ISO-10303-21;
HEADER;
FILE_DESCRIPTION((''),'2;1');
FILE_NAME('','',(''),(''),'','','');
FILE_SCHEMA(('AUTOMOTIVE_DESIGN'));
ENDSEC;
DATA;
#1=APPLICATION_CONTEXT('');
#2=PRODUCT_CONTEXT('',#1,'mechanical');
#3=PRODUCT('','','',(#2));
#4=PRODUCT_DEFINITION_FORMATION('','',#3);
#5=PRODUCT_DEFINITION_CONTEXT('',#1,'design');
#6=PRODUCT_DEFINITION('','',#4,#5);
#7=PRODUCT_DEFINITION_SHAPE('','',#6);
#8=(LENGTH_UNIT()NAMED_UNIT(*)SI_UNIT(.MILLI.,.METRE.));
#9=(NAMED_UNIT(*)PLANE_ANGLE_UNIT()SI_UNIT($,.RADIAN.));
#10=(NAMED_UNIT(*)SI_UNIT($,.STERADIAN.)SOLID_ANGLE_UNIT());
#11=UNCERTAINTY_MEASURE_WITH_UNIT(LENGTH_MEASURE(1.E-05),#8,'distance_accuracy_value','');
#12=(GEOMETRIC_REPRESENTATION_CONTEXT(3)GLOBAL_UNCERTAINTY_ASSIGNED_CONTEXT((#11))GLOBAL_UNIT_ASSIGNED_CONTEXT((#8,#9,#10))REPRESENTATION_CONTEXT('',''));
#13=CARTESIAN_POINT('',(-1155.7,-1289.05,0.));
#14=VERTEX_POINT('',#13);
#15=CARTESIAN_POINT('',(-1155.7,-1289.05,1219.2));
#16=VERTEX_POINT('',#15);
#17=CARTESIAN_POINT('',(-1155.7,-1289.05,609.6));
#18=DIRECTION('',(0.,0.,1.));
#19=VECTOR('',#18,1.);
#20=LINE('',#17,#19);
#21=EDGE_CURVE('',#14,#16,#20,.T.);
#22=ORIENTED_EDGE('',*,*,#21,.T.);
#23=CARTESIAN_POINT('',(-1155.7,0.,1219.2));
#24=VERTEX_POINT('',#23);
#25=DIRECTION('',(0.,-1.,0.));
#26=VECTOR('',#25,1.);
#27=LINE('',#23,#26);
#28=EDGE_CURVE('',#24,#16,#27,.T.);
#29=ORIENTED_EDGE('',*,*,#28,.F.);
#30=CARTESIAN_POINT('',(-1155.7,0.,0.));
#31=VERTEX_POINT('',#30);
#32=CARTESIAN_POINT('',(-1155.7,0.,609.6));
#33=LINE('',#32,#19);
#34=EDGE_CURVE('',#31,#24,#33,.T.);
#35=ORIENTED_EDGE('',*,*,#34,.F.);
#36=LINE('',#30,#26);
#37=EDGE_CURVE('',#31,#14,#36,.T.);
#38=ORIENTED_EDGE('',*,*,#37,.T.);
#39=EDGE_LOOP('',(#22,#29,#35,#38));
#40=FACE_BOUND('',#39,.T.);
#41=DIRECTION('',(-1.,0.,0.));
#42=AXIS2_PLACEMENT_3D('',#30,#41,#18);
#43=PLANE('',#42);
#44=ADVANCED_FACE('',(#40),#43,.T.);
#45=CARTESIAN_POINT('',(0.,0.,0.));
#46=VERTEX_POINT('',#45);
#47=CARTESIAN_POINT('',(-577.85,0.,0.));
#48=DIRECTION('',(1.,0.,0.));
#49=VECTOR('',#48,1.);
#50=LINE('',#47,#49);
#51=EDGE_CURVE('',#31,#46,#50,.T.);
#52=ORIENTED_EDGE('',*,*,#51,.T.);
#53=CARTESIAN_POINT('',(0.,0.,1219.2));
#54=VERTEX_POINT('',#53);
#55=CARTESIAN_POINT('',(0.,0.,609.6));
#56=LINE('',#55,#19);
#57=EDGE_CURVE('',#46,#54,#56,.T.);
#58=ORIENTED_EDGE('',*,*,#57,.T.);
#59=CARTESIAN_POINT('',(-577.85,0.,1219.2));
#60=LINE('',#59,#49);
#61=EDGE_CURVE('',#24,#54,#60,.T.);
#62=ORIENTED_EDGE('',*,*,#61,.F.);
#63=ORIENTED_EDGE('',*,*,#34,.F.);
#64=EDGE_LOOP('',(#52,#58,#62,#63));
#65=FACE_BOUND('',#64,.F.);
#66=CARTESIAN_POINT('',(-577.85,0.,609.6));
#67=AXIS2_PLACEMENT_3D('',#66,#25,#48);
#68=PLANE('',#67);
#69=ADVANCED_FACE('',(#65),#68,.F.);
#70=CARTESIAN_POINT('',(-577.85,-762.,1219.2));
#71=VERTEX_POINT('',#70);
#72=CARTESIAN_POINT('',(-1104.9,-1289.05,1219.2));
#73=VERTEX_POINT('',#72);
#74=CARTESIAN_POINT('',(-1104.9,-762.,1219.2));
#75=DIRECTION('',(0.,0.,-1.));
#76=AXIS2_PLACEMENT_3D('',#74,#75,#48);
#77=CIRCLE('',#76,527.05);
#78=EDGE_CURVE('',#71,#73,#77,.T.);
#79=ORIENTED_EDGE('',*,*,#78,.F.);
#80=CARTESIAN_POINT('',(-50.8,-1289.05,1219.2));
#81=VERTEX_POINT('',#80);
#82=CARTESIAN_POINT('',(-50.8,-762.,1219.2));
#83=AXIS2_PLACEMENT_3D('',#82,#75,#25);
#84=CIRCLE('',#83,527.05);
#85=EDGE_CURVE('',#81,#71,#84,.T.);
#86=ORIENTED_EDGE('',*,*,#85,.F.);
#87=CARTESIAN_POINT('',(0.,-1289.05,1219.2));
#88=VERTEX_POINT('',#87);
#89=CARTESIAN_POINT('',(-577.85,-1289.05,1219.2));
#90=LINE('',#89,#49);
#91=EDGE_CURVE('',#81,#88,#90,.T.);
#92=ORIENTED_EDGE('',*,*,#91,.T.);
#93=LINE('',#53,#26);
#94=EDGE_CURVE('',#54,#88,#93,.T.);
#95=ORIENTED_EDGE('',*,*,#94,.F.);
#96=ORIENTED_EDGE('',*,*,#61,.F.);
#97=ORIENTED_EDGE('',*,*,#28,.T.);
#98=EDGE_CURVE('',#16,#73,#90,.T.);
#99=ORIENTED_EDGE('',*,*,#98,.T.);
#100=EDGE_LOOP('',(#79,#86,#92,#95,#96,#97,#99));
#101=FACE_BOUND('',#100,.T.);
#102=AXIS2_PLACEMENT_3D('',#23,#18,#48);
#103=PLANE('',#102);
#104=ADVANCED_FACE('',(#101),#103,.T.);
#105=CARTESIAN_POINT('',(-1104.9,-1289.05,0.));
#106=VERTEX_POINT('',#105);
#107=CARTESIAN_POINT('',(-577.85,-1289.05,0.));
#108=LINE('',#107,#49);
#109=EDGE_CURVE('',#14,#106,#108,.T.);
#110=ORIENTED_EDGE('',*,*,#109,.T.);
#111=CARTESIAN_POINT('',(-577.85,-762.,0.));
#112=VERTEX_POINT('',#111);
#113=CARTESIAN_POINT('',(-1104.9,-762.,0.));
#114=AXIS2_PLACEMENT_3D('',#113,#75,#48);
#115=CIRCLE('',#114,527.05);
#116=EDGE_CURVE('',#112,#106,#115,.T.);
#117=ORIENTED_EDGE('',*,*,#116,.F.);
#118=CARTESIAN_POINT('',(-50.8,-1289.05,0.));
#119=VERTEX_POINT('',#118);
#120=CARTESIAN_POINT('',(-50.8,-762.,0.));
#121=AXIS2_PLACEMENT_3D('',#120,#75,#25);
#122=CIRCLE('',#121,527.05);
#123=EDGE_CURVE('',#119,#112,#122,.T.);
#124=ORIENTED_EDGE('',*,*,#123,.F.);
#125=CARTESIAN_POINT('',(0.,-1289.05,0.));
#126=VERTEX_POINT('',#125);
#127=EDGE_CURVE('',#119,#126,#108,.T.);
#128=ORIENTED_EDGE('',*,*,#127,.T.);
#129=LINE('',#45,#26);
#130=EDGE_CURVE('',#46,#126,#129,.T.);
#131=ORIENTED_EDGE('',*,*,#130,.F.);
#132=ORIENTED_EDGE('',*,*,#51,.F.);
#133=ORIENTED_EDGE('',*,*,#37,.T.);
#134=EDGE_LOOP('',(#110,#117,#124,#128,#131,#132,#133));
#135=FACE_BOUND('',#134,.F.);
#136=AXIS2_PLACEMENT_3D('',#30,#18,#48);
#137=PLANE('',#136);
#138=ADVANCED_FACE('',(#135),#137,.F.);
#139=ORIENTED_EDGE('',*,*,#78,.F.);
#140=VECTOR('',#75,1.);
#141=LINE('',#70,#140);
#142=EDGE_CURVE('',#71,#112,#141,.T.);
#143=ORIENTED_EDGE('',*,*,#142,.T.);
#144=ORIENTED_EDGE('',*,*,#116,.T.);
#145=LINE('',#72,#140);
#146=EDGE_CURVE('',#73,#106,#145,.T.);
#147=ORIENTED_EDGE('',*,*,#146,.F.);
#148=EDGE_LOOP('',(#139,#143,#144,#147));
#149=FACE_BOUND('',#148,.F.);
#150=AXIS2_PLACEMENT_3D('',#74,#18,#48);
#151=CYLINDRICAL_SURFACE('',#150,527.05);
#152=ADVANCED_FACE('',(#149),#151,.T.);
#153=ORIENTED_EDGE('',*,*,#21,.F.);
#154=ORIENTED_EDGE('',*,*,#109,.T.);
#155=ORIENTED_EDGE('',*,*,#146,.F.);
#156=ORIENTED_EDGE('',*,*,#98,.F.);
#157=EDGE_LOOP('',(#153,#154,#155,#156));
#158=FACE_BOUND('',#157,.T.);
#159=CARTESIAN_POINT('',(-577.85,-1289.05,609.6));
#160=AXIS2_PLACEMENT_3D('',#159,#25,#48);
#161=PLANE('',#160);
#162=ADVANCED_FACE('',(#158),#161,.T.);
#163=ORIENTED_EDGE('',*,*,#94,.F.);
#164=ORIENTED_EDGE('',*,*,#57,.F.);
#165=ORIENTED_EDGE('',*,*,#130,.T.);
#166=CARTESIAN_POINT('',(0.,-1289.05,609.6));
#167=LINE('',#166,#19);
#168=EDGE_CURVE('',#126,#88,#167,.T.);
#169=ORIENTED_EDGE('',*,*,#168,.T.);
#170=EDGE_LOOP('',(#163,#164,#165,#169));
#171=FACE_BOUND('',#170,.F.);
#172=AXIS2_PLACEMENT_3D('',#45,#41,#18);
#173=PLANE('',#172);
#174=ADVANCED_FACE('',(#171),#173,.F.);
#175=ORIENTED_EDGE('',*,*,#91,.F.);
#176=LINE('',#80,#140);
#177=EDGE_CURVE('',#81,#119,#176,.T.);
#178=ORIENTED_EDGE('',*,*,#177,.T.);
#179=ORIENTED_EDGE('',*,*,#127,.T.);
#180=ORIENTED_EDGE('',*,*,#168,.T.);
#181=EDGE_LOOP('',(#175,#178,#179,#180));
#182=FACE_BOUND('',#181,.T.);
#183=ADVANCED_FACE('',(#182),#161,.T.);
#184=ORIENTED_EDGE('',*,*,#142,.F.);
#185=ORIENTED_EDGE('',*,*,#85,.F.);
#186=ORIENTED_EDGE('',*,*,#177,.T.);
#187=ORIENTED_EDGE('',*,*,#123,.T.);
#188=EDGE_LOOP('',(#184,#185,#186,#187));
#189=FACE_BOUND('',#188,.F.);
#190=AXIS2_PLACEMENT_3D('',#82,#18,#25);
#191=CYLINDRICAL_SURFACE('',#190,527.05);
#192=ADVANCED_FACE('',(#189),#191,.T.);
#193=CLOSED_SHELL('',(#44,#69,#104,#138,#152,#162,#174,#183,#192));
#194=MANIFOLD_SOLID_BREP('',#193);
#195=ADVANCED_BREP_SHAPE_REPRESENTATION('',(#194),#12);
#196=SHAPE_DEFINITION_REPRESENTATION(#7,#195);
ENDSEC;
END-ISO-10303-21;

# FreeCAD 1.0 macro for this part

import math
import FreeCAD as App
import Part
import Sketcher
from FreeCAD import Vector
Q = App.Units.Quantity


def add_polygon(sketch, points):
    """Adds a closed chain of lines whose ends are joined by coincident constraints."""
    first, n = sketch.GeometryCount, len(points)
    for a, b in zip(points, points[1:] + points[:1]):
        sketch.addGeometry(Part.LineSegment(App.Vector(*a, 0), App.Vector(*b, 0)), False)
    for i in range(n):
        sketch.addConstraint(Sketcher.Constraint("Coincident", first + i, 2, first + (i + 1) % n, 1))

doc = App.newDocument("Part")
params = doc.addObject("Spreadsheet::Sheet", "Params")
for row, (alias, value) in enumerate([
    ("sketch1_height", "48 in"),
    ("sketch1_width", "45.5 in"),
    ("pad1_length", "50.75 in"),
    ("sketch2_radius", "20.75 in"),
], start=1):
    params.set(f"A{row}", alias)
    params.set(f"B{row}", "=" + value)
    params.setAlias(f"B{row}", alias)

body = doc.addObject("PartDesign::Body", "Body")

# Sketch on XZ plane
sketch1 = body.newObject("Sketcher::SketchObject", "Sketch")
sketch1.AttachmentSupport = (doc.getObject("XZ_Plane"), [""])
sketch1.MapMode = "FlatFace"
add_polygon(sketch1, [(-1156, 1219), (-1156, 0), (0, 0), (0, 1219)])  # lines 0-3
sketch1.addConstraint([
    Sketcher.Constraint("Vertical", 0),
    Sketcher.Constraint("Horizontal", 1),
    Sketcher.Constraint("Vertical", 2),
    Sketcher.Constraint("Horizontal", 3),
    Sketcher.Constraint("Coincident", 1, 2, -1, 1),
    Sketcher.Constraint("DistanceY", 0, 2, 0, 1, Q("48 in")),
    Sketcher.Constraint("DistanceX", 1, 1, 1, 2, Q("45.5 in")),
])
sketch1.setExpression("Constraints[9]", "Params.sketch1_height")
sketch1.setExpression("Constraints[10]", "Params.sketch1_width")
pad1 = body.newObject("PartDesign::Pad", "Pad")
pad1.Profile = sketch1
pad1.setExpression("Length", "Params.pad1_length")

# Sketch on XY plane
sketch2 = body.newObject("Sketcher::SketchObject", "Sketch001")
sketch2.AttachmentSupport = (doc.getObject("XY_Plane"), [""])
sketch2.MapMode = "FlatFace"
sketch2.AttachmentOffset = App.Placement(Vector(0, 0, 48 * 25.4), App.Rotation())
sketch2.addGeometry([
    Part.ArcOfCircle(Part.Circle(Vector(-1105, -762, 0), Vector(0, 0, 1), 527), math.radians(-90), math.radians(0)),
    Part.LineSegment(Vector(-1105, -1289, 0), Vector(-51, -1289, 0)),
    Part.ArcOfCircle(Part.Circle(Vector(-51, -762, 0), Vector(0, 0, 1), 527), math.radians(-180), math.radians(-90)),
], False)
sketch2.addConstraint([
    Sketcher.Constraint("Tangent", 0, 1, 1, 1),
    Sketcher.Constraint("Tangent", 1, 2, 2, 2),
    Sketcher.Constraint("Tangent", 2, 1, 0, 2),
    Sketcher.Constraint("Horizontal", 1),
    Sketcher.Constraint("Equal", 0, 2),
    Sketcher.Constraint("Radius", 0, Q("20.75 in")),
    Sketcher.Constraint("DistanceY", 0, 3, -1, 1, Q("30 in")),
    Sketcher.Constraint("DistanceX", 2, 3, -1, 1, Q("2 in")),
])
sketch2.setExpression("Constraints[5]", "Params.sketch2_radius")
pocket1 = body.newObject("PartDesign::Pocket", "Pocket")
pocket1.Profile = sketch2
pocket1.Type = "ThroughAll"

doc.recompute()
